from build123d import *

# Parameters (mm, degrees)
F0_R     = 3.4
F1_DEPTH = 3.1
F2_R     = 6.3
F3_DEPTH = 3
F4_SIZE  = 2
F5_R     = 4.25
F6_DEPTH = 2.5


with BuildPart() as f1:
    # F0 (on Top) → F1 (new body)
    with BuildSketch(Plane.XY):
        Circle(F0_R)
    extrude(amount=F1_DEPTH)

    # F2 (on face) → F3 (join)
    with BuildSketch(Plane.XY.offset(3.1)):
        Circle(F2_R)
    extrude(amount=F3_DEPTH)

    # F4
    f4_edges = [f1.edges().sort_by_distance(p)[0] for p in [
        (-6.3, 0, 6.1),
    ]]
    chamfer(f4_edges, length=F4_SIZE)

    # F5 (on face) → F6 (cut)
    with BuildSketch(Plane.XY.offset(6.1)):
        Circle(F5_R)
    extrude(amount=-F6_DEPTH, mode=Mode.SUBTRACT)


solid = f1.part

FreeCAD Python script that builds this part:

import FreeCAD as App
import Part
import Sketcher

V = App.Vector
Q = App.Units.Quantity


def edges_at(feature, points):
    """Names of the edges that pass closest to the given points."""
    edges = feature.Shape.Edges
    near = lambda p: min(range(len(edges)), key=lambda i: edges[i].distToShape(Part.Vertex(*p))[0])
    return sorted({f"Edge{near(p) + 1}" for p in points})

doc = App.newDocument("Part")
body = doc.addObject("PartDesign::Body", "Body")

# Sketch on XY plane
sketch1 = body.newObject("Sketcher::SketchObject", "Sketch")
sketch1.AttachmentSupport = (doc.getObject("XY_Plane"), [""])
sketch1.MapMode = "FlatFace"
sketch1.addGeometry(Part.Circle(V(0, 0, 0), V(0, 0, 1), 3.4), False)
sketch1.addConstraint([
    Sketcher.Constraint("Coincident", 0, 3, -1, 1),
    Sketcher.Constraint("Diameter", 0, Q("6.8 mm")),
])
pad1 = body.newObject("PartDesign::Pad", "Pad")
pad1.Profile = sketch1
pad1.Length = 3.1

# Sketch on XY plane
sketch2 = body.newObject("Sketcher::SketchObject", "Sketch001")
sketch2.AttachmentSupport = (doc.getObject("XY_Plane"), [""])
sketch2.MapMode = "FlatFace"
sketch2.AttachmentOffset = App.Placement(V(0, 0, 3.1), App.Rotation())
sketch2.addGeometry(Part.Circle(V(0, 0, 0), V(0, 0, 1), 6), False)
sketch2.addConstraint([
    Sketcher.Constraint("Coincident", 0, 3, -1, 1),
    Sketcher.Constraint("Diameter", 0, Q("12.6 mm")),
])
pad2 = body.newObject("PartDesign::Pad", "Pad001")
pad2.Profile = sketch2
pad2.Length = 3
doc.recompute()

chamfer = body.newObject("PartDesign::Chamfer", "Chamfer")
chamfer.Base = (pad2, edges_at(pad2, [(-6.3, 0, 6.1)]))
chamfer.Size = 2

# Sketch on XY plane
sketch3 = body.newObject("Sketcher::SketchObject", "Sketch002")
sketch3.AttachmentSupport = (doc.getObject("XY_Plane"), [""])
sketch3.MapMode = "FlatFace"
sketch3.AttachmentOffset = App.Placement(V(0, 0, 6.1), App.Rotation())
sketch3.addGeometry(Part.Circle(V(0, 0, 0), V(0, 0, 1), 4.2), False)
sketch3.addConstraint([
    Sketcher.Constraint("Coincident", 0, 3, -1, 1),
    Sketcher.Constraint("Diameter", 0, Q("8.5 mm")),
])
pocket1 = body.newObject("PartDesign::Pocket", "Pocket")
pocket1.Profile = sketch3
pocket1.Length = 2.5

doc.recompute()
